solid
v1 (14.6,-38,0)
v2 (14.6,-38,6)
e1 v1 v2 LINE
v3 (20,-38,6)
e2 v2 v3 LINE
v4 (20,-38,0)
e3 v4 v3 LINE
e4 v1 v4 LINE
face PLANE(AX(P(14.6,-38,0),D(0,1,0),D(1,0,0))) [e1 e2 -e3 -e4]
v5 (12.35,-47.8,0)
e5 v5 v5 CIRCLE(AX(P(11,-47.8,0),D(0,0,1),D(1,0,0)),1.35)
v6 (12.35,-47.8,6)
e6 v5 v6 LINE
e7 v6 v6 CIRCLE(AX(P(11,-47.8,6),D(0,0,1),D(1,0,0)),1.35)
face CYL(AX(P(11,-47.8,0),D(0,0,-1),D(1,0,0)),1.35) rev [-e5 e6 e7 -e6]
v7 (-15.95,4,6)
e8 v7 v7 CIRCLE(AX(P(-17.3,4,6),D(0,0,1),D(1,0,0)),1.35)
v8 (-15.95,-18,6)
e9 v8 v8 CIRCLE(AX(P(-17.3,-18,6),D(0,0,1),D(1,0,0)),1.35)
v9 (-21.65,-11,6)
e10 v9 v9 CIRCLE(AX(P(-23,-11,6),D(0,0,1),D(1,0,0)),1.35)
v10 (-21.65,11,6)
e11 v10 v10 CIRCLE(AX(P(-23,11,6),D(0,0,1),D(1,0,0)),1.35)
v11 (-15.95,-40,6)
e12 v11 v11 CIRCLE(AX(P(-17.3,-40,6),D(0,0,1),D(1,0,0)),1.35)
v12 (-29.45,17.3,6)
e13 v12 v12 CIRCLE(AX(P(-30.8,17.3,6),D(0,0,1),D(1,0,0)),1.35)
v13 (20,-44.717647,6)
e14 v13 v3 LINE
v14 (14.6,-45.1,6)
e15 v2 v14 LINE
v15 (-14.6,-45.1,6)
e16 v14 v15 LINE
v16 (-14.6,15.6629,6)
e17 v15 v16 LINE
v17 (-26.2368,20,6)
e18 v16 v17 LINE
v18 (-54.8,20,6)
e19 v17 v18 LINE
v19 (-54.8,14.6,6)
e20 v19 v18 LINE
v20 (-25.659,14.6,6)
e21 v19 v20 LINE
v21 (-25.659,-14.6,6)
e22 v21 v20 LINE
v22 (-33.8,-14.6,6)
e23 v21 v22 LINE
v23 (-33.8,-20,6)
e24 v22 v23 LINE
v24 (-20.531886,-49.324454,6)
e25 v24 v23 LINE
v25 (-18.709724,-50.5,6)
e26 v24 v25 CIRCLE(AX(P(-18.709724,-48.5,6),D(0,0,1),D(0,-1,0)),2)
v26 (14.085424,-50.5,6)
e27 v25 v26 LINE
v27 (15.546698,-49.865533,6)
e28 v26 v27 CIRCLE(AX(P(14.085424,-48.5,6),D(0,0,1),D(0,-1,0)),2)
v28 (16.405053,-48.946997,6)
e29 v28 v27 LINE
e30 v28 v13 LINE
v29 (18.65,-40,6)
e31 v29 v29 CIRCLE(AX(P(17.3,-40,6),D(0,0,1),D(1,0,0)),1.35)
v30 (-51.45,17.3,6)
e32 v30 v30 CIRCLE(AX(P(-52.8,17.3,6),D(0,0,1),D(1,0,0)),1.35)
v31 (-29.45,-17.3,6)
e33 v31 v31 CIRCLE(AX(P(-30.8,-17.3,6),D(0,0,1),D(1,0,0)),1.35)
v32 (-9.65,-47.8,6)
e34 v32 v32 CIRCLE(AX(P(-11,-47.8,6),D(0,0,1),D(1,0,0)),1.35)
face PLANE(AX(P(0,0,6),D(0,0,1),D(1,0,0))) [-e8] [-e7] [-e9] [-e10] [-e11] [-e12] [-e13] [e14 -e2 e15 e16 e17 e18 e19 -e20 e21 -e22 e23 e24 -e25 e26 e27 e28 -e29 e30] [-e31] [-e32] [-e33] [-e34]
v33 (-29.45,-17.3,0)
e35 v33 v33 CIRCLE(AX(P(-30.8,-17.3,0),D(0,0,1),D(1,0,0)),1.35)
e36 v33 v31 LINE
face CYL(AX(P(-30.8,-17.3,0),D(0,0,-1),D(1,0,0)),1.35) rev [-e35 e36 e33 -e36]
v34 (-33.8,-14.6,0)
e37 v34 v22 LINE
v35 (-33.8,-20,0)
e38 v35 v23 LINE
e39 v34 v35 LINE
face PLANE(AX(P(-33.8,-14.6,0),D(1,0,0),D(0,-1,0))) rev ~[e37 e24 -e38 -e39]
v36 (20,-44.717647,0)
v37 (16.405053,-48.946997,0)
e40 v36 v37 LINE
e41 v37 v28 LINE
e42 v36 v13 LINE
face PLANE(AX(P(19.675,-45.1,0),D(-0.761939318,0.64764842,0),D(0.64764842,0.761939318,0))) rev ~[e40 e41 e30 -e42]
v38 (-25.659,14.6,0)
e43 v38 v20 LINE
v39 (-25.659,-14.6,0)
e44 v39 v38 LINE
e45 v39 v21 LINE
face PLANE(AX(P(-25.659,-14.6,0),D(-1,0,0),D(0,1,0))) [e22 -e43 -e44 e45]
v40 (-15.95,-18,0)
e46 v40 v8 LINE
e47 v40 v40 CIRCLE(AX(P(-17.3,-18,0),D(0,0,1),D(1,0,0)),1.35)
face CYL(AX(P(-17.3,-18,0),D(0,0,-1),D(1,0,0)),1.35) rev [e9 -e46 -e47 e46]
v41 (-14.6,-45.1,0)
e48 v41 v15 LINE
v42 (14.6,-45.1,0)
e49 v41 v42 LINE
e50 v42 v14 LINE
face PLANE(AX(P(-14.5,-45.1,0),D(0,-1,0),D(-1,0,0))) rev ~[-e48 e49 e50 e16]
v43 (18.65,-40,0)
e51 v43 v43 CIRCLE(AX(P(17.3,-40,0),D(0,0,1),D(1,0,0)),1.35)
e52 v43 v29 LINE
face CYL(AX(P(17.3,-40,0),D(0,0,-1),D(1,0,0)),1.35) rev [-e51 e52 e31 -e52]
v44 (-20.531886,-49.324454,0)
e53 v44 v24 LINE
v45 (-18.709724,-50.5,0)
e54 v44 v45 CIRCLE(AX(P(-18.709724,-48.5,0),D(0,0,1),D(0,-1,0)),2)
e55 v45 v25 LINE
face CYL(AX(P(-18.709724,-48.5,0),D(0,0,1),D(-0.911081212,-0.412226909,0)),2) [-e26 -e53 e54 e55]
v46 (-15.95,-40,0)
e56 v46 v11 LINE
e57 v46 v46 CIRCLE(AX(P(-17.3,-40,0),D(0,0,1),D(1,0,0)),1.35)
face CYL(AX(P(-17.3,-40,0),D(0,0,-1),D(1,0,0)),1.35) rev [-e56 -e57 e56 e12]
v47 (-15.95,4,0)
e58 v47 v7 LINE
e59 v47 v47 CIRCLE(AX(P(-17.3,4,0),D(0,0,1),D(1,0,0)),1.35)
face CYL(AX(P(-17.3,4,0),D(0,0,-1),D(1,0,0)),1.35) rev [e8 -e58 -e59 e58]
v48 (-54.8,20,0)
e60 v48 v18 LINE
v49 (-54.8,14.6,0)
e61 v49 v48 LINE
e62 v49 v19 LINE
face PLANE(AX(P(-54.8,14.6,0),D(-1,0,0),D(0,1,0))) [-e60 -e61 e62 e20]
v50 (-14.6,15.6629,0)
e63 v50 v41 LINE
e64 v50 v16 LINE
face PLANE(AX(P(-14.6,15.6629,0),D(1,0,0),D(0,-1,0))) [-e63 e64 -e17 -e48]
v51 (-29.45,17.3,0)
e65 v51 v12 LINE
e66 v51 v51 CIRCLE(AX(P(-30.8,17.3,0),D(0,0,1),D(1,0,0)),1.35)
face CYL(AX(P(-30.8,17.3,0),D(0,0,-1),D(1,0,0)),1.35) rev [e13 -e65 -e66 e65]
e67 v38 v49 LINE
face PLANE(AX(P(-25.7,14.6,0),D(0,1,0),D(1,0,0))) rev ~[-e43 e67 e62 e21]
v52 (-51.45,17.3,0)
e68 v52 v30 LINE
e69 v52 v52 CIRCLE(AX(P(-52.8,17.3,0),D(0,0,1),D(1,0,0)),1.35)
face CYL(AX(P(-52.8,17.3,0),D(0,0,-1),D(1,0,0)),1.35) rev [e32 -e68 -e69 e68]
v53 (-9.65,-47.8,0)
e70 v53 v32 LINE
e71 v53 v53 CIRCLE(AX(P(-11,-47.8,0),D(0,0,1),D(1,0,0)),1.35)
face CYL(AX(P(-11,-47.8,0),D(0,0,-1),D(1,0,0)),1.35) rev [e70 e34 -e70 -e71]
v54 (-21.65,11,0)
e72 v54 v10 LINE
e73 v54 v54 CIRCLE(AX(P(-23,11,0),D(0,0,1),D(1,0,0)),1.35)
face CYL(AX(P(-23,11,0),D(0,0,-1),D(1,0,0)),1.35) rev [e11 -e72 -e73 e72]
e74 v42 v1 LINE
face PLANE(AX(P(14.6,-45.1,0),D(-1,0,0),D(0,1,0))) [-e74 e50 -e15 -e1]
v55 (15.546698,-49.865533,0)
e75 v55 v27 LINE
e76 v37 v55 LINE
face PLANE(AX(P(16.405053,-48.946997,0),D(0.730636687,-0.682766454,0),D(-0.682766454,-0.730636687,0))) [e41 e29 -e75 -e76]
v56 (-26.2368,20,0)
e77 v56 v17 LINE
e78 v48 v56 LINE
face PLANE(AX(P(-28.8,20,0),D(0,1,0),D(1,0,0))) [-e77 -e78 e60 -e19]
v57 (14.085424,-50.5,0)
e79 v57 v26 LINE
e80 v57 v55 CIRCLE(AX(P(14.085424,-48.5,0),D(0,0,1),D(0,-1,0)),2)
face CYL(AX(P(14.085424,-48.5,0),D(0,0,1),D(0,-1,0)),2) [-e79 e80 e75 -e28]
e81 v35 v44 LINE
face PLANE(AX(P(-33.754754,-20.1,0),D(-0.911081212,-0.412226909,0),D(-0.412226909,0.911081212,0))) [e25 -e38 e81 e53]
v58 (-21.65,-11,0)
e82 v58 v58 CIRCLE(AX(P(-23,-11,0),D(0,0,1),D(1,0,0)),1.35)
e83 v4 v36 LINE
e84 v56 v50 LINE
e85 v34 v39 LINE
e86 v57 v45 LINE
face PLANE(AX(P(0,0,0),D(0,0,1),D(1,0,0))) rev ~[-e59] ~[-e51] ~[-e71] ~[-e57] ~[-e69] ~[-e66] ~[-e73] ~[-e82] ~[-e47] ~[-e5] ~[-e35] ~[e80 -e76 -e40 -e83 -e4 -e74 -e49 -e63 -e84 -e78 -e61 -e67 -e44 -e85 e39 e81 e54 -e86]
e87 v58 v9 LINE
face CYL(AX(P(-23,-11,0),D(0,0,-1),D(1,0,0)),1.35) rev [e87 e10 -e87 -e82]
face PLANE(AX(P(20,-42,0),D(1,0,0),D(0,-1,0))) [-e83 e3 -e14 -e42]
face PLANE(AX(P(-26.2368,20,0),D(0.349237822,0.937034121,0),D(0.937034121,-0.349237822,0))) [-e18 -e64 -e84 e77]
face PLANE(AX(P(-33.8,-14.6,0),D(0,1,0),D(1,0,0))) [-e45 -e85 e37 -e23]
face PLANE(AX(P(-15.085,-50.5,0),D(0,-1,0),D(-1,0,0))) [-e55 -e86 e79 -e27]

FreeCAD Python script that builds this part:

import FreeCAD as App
import Part
import Sketcher
from FreeCAD import Vector
Q = App.Units.Quantity


def edges_at(feature, points):
    """Names of the edges that pass closest to the given points."""
    edges = feature.Shape.Edges
    near = lambda p: min(range(len(edges)), key=lambda i: edges[i].distToShape(Part.Vertex(*p))[0])
    return sorted({f"Edge{near(p) + 1}" for p in points})

doc = App.newDocument("Part")
body = doc.addObject("PartDesign::Body", "Body")

sketch1 = body.newObject("Sketcher::SketchObject", "Sketch")
sketch1.AttachmentSupport = (doc.getObject("XY_Plane"), [""])
sketch1.MapMode = "FlatFace"
sketch1.addGeometry([
    Part.LineSegment(Vector(-33.8, -20, 0), Vector(-20, -50.5, 0)),
    Part.LineSegment(Vector(-20, -50.5, 0), Vector(15, -50.5, 0)),
    Part.LineSegment(Vector(15, -50.5, 0), Vector(16.4, -48.9, 0)),
    Part.LineSegment(Vector(16.4, -48.9, 0), Vector(20, -44.7, 0)),
    Part.LineSegment(Vector(20, -44.7, 0), Vector(20, -38, 0)),
    Part.LineSegment(Vector(20, -38, 0), Vector(14.6, -38, 0)),
    Part.LineSegment(Vector(14.6, -38, 0), Vector(14.6, -45.1, 0)),
    Part.LineSegment(Vector(14.6, -45.1, 0), Vector(-14.6, -45.1, 0)),
    Part.LineSegment(Vector(-14.6, -45.1, 0), Vector(-14.6, 15.7, 0)),
    Part.LineSegment(Vector(-14.6, 15.7, 0), Vector(-26.2, 20, 0)),
    Part.LineSegment(Vector(-26.2, 20, 0), Vector(-54.8, 20, 0)),
    Part.LineSegment(Vector(-54.8, 20, 0), Vector(-54.8, 14.6, 0)),
    Part.LineSegment(Vector(-54.8, 14.6, 0), Vector(-25.7, 14.6, 0)),
    Part.LineSegment(Vector(-25.7, 14.6, 0), Vector(-25.7, -14.6, 0)),
    Part.LineSegment(Vector(-25.7, -14.6, 0), Vector(-33.8, -14.6, 0)),
    Part.LineSegment(Vector(-33.8, -14.6, 0), Vector(-33.8, -20, 0)),
    Part.Circle(Vector(-23, -11, 0), Vector(0, 0, 1), 1.4),
    Part.Circle(Vector(-23, 11, 0), Vector(0, 0, 1), 1.4),
    Part.Circle(Vector(-30.8, -17.3, 0), Vector(0, 0, 1), 1.4),
    Part.Circle(Vector(-52.8, 17.3, 0), Vector(0, 0, 1), 1.4),
    Part.Circle(Vector(-30.8, 17.3, 0), Vector(0, 0, 1), 1.4),
    Part.Circle(Vector(-17.3, -18, 0), Vector(0, 0, 1), 1.4),
    Part.Circle(Vector(-17.3, 4, 0), Vector(0, 0, 1), 1.4),
    Part.Circle(Vector(-17.3, -40, 0), Vector(0, 0, 1), 1.4),
    Part.Circle(Vector(-11, -47.8, 0), Vector(0, 0, 1), 1.4),
    Part.Circle(Vector(11, -47.8, 0), Vector(0, 0, 1), 1.4),
    Part.Circle(Vector(17.3, -40, 0), Vector(0, 0, 1), 1.4),
], False)
sketch1.addConstraint([
    Sketcher.Constraint("Coincident", 0, 2, 1, 1),
    Sketcher.Constraint("Coincident", 1, 2, 2, 1),
    Sketcher.Constraint("Coincident", 2, 2, 3, 1),
    Sketcher.Constraint("Coincident", 3, 2, 4, 1),
    Sketcher.Constraint("Coincident", 4, 2, 5, 1),
    Sketcher.Constraint("Coincident", 5, 2, 6, 1),
    Sketcher.Constraint("Coincident", 6, 2, 7, 1),
    Sketcher.Constraint("Coincident", 7, 2, 8, 1),
    Sketcher.Constraint("Coincident", 8, 2, 9, 1),
    Sketcher.Constraint("Coincident", 9, 2, 10, 1),
    Sketcher.Constraint("Coincident", 10, 2, 11, 1),
    Sketcher.Constraint("Coincident", 11, 2, 12, 1),
    Sketcher.Constraint("Coincident", 12, 2, 13, 1),
    Sketcher.Constraint("Coincident", 13, 2, 14, 1),
    Sketcher.Constraint("Coincident", 14, 2, 15, 1),
    Sketcher.Constraint("Coincident", 15, 2, 0, 1),
    Sketcher.Constraint("Horizontal", 1),
    Sketcher.Constraint("Vertical", 4),
    Sketcher.Constraint("Horizontal", 5),
    Sketcher.Constraint("Vertical", 6),
    Sketcher.Constraint("Horizontal", 7),
    Sketcher.Constraint("Vertical", 8),
    Sketcher.Constraint("Horizontal", 10),
    Sketcher.Constraint("Vertical", 11),
    Sketcher.Constraint("Horizontal", 12),
    Sketcher.Constraint("Vertical", 13),
    Sketcher.Constraint("Horizontal", 14),
    Sketcher.Constraint("Vertical", 15),
    Sketcher.Constraint("Equal", 16, 17),
    Sketcher.Constraint("Equal", 17, 18),
    Sketcher.Constraint("Equal", 18, 19),
    Sketcher.Constraint("Equal", 19, 20),
    Sketcher.Constraint("Equal", 20, 21),
    Sketcher.Constraint("Equal", 21, 22),
    Sketcher.Constraint("Equal", 22, 23),
    Sketcher.Constraint("Equal", 23, 24),
    Sketcher.Constraint("Equal", 24, 25),
    Sketcher.Constraint("Equal", 25, 26),
    Sketcher.Constraint("Symmetric", 24, 3, 25, 3, -2),
    Sketcher.Constraint("Symmetric", 23, 3, 26, 3, -2),
    Sketcher.Constraint("Symmetric", 16, 3, 17, 3, -1),
    Sketcher.Constraint("Symmetric", 18, 3, 20, 3, -1),
    Sketcher.Constraint("Horizontal", 19, 3, 20, 3),
    Sketcher.Constraint("Vertical", 21, 3, 22, 3),
    Sketcher.Constraint("Vertical", 22, 3, 23, 3),
    Sketcher.Constraint("Equal", 5, 11),
    Sketcher.Constraint("Equal", 7, 13),
    Sketcher.Constraint("Equal", 11, 15),
    Sketcher.Constraint("Diameter", 16, 2.7),
    Sketcher.Constraint("DistanceY", -1, 1, 22, 3, 4.0),
    Sketcher.Constraint("DistanceY", 21, 3, 16, 3, 7.0),
    Sketcher.Constraint("DistanceY", 22, 3, 17, 3, 7.0),
    Sketcher.Constraint("DistanceY", 0, 2, 24, 3, 2.7),
    Sketcher.Constraint("DistanceX", 0, 2, 23, 3, 2.7),
    Sketcher.Constraint("DistanceX", 26, 3, 3, 2, 2.7),
    Sketcher.Constraint("DistanceX", 5, 2, 26, 3, 2.7),
    Sketcher.Constraint("DistanceY", 25, 3, 6, 2, 2.7),
    Sketcher.Constraint("DistanceX", 23, 3, 7, 2, 2.7),
    Sketcher.Constraint("DistanceY", 20, 3, 9, 2, 2.7),
    Sketcher.Constraint("DistanceY", 18, 3, 13, 2, 2.7),
    Sketcher.Constraint("DistanceX", 7, 2, 7, 1, 29.2),
    Sketcher.Constraint("DistanceY", 6, 2, 6, 1, 7.1),
    Sketcher.Constraint("DistanceX", 16, 3, -1, 1, 23.0),
    Sketcher.Constraint("DistanceY", 23, 3, -1, 1, 40.0),
    Sketcher.Constraint("DistanceX", 24, 3, -1, 1, 11.0),
    Sketcher.Constraint("DistanceY", 4, 2, -1, 1, 38.0),
    Sketcher.Constraint("DistanceX", 19, 3, 18, 3, 22.0),
    Sketcher.Constraint("DistanceX", 10, 2, 19, 3, 2.0),
    Sketcher.Constraint("DistanceX", 14, 2, 18, 3, 3.0),
    Sketcher.Constraint("DistanceX", 18, 3, -1, 1, 30.8),
    Sketcher.Constraint("Angle", 2, Q("46.9398 deg")),
    Sketcher.Constraint("Angle", 9, Q("159.5593 deg")),
    Sketcher.Constraint("DistanceX", 12, 1, 12, 2, 29.141),
    Sketcher.Constraint("DistanceY", 8, 1, 8, 2, 60.763),
    Sketcher.Constraint("DistanceX", 1, 1, 1, 2, 34.9538),
    Sketcher.Constraint("DistanceY", 4, 1, 4, 2, 6.7176),
    Sketcher.Constraint("DistanceX", -1, 1, 2, 2, 16.405),
])
pad1 = body.newObject("PartDesign::Pad", "Pad")
pad1.Profile = sketch1
pad1.Length = 6
doc.recompute()

fillet = body.newObject("PartDesign::Fillet", "Fillet")
fillet.Base = (pad1, edges_at(pad1, [(-20, -50.5, 3), (14.954, -50.5, 3)]))
fillet.Radius = 2

doc.recompute()
